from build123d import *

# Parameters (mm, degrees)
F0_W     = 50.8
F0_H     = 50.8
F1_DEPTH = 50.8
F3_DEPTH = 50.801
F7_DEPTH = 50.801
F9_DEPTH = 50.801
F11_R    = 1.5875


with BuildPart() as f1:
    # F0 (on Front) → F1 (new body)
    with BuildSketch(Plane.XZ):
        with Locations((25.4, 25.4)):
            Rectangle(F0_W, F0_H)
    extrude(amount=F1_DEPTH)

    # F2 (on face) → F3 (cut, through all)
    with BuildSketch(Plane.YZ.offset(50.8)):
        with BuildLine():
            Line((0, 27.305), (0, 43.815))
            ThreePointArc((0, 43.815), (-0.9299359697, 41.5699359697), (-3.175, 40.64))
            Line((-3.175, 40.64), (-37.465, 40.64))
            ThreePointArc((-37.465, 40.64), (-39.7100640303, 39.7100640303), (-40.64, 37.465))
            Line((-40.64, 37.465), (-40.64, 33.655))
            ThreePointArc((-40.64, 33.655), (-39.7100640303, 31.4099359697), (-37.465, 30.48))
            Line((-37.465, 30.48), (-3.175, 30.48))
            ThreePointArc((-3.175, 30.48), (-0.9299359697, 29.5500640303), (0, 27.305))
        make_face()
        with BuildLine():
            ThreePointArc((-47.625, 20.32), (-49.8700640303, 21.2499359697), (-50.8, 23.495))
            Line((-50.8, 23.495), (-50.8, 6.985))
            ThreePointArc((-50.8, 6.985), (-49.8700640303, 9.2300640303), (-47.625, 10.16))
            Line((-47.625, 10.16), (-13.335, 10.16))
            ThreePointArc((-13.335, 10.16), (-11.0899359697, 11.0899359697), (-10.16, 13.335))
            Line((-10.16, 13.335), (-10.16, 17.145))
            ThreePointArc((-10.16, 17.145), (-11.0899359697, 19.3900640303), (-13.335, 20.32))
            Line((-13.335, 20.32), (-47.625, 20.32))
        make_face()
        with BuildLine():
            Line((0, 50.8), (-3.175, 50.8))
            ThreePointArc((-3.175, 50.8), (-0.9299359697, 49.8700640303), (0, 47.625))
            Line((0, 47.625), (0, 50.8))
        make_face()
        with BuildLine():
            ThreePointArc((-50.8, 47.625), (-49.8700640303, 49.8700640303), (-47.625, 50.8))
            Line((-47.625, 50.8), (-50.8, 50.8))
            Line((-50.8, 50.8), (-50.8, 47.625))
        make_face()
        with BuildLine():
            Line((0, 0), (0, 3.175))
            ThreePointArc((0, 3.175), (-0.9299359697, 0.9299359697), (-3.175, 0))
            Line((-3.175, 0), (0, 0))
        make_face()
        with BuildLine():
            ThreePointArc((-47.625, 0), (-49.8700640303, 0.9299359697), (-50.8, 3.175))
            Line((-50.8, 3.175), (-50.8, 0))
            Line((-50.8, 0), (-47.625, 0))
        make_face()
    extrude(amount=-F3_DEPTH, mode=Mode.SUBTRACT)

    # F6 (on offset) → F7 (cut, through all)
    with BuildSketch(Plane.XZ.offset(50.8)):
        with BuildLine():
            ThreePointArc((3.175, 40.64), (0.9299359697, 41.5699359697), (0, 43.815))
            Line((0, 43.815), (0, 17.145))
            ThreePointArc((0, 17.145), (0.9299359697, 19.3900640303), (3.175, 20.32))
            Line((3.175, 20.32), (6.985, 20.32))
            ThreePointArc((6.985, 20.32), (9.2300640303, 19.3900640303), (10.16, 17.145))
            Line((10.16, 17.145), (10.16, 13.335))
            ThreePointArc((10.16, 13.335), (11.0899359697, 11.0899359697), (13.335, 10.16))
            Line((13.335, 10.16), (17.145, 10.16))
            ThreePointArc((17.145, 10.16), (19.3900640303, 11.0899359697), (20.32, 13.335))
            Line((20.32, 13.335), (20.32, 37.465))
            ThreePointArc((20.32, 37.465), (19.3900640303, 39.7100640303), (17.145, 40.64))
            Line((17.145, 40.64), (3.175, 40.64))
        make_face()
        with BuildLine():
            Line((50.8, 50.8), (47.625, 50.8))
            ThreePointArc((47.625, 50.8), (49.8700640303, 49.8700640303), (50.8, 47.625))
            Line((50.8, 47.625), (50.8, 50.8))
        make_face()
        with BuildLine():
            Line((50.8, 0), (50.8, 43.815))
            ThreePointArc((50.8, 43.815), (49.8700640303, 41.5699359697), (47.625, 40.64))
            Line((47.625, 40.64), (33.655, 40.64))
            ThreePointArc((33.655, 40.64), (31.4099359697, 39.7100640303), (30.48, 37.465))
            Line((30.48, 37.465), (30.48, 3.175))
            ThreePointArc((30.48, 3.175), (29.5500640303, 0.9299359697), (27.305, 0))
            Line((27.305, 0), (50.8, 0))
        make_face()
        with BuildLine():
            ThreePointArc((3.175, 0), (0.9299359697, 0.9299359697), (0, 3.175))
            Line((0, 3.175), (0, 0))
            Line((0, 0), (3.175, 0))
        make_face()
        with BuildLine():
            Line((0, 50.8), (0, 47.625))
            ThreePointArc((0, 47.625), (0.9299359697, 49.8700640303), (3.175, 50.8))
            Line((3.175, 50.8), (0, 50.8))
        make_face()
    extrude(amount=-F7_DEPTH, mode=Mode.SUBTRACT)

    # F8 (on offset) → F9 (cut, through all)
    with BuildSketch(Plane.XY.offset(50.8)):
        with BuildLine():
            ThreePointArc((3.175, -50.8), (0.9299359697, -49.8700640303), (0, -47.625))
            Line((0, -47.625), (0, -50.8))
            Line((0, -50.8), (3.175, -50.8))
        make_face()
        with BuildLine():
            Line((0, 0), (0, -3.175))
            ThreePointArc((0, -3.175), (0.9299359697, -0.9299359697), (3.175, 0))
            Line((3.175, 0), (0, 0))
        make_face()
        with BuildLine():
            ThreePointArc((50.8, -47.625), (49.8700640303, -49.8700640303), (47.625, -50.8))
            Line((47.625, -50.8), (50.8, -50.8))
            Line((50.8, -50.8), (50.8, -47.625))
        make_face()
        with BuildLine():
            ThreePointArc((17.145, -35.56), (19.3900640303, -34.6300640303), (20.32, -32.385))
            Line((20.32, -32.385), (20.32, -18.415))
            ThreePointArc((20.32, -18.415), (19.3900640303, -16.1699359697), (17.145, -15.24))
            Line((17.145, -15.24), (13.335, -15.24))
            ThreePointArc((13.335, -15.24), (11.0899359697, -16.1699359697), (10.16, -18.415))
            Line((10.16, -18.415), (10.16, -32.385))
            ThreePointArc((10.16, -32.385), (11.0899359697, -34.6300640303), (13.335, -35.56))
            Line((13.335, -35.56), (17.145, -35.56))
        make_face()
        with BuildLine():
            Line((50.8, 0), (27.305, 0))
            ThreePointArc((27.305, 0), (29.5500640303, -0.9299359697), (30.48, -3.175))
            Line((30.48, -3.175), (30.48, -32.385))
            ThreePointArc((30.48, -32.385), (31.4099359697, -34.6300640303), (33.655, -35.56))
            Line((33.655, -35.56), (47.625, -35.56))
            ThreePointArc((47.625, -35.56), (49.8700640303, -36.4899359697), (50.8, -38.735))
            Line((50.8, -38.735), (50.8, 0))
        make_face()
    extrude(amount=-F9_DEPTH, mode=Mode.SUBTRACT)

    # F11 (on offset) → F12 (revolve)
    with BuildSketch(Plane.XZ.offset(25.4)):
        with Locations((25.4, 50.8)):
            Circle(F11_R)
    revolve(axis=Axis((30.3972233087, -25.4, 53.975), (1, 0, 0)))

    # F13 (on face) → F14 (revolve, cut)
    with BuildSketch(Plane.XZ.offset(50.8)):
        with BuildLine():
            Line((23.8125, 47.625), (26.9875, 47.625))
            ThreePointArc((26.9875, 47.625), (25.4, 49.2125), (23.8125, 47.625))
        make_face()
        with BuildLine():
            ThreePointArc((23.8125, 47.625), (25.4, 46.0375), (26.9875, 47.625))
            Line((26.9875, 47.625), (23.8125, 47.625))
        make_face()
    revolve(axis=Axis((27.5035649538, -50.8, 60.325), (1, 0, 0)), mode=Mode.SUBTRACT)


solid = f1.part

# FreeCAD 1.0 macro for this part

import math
import FreeCAD as App
import Part
import Sketcher
Q = App.Units.Quantity


def add_polygon(sketch, points):
    """Adds a closed chain of lines whose ends are joined by coincident constraints."""
    first, n = sketch.GeometryCount, len(points)
    for a, b in zip(points, points[1:] + points[:1]):
        sketch.addGeometry(Part.LineSegment(App.Vector(*a, 0), App.Vector(*b, 0)), False)
    for i in range(n):
        sketch.addConstraint(Sketcher.Constraint("Coincident", first + i, 2, first + (i + 1) % n, 1))

doc = App.newDocument("Part")
params = doc.addObject("Spreadsheet::Sheet", "Params")
for row, (alias, value) in enumerate([
    ("sketch1_width", "2 in"),
    ("pad1_length", "2 in"),
    ("sketch2_radius", "0.125 in"),
    ("sketch2_width", "1.35 in"),
    ("sketch2_height", "0.65 in"),
    ("sketch3_radius", "0.125 in"),
    ("sketch3_width", "0.15 in"),
    ("sketch3_height", "1.05 in"),
    ("sketch3_height2", "1.35 in"),
    ("sketch4_radius", "0.125 in"),
    ("sketch4_width", "0.15 in"),
    ("sketch4_width2", "0.55 in"),
    ("sketch4_height", "1.15 in"),
    ("sketch5_diameter", "0.125 in"),
    ("revolution_angle", "360 deg"),
    ("sketch6_diameter", "0.125 in"),
    ("groove_angle", "360 deg"),
], start=1):
    params.set(f"A{row}", alias)
    params.set(f"B{row}", "=" + value)
    params.setAlias(f"B{row}", alias)

body = doc.addObject("PartDesign::Body", "Body")

# Sketch on XZ plane
sketch1 = doc.addObject("Sketcher::SketchObject", "Sketch")
body.addObject(sketch1)
sketch1.AttachmentSupport = (doc.XZ_Plane, [""])
sketch1.MapMode = "FlatFace"
add_polygon(sketch1, [(0, 51), (0, 0), (51, 0), (51, 51)])  # lines 0-3
sketch1.addConstraint([
    Sketcher.Constraint("Vertical", 0),
    Sketcher.Constraint("Horizontal", 1),
    Sketcher.Constraint("Vertical", 2),
    Sketcher.Constraint("Horizontal", 3),
    Sketcher.Constraint("Coincident", 0, 2, -1, 1),
    Sketcher.Constraint("Equal", 3, 0),
    Sketcher.Constraint("DistanceX", 1, 1, 1, 2, Q("2 in")),
])
sketch1.setExpression("Constraints[10]", "Params.sketch1_width")
pad1 = doc.addObject("PartDesign::Pad", "Pad")
body.addObject(pad1)
pad1.Profile = sketch1
pad1.setExpression("Length", "Params.pad1_length")

# Sketch on YZ plane
sketch2 = doc.addObject("Sketcher::SketchObject", "Sketch001")
body.addObject(sketch2)
sketch2.AttachmentSupport = (doc.YZ_Plane, [""])
sketch2.MapMode = "FlatFace"
sketch2.AttachmentOffset = App.Placement(App.Vector(0, 0, 2 * 25.4), App.Rotation())
sketch2.addGeometry([
    Part.LineSegment(App.Vector(0, 27.3, 0), App.Vector(0, 43.8, 0)),  # 0
    Part.ArcOfCircle(Part.Circle(App.Vector(-3.2, 43.8, 0), App.Vector(0, 0, 1), 3.2), math.radians(-90), math.radians(0)),  # 1
    Part.LineSegment(App.Vector(-3.2, 40.6, 0), App.Vector(-37.5, 40.6, 0)),  # 2
    Part.ArcOfCircle(Part.Circle(App.Vector(-37.5, 37.5, 0), App.Vector(0, 0, 1), 3.2), math.radians(90), math.radians(180)),  # 3
    Part.LineSegment(App.Vector(-40.6, 37.5, 0), App.Vector(-40.6, 33.7, 0)),  # 4
    Part.ArcOfCircle(Part.Circle(App.Vector(-37.5, 33.7, 0), App.Vector(0, 0, 1), 3.2), math.radians(180), math.radians(270)),  # 5
    Part.LineSegment(App.Vector(-37.5, 30.5, 0), App.Vector(-3.2, 30.5, 0)),  # 6
    Part.ArcOfCircle(Part.Circle(App.Vector(-3.2, 27.3, 0), App.Vector(0, 0, 1), 3.2), math.radians(0), math.radians(90)),  # 7
    Part.ArcOfCircle(Part.Circle(App.Vector(-47.6, 23.5, 0), App.Vector(0, 0, 1), 3.2), math.radians(180), math.radians(270)),  # 8
    Part.LineSegment(App.Vector(-50.8, 23.5, 0), App.Vector(-50.8, 7, 0)),  # 9
    Part.ArcOfCircle(Part.Circle(App.Vector(-47.6, 7, 0), App.Vector(0, 0, 1), 3.2), math.radians(90), math.radians(180)),  # 10
    Part.LineSegment(App.Vector(-47.6, 10.2, 0), App.Vector(-13.3, 10.2, 0)),  # 11
    Part.ArcOfCircle(Part.Circle(App.Vector(-13.3, 13.3, 0), App.Vector(0, 0, 1), 3.2), math.radians(-90), math.radians(0)),  # 12
    Part.LineSegment(App.Vector(-10.2, 13.3, 0), App.Vector(-10.2, 17.1, 0)),  # 13
    Part.ArcOfCircle(Part.Circle(App.Vector(-13.3, 17.1, 0), App.Vector(0, 0, 1), 3.2), math.radians(0), math.radians(90)),  # 14
    Part.LineSegment(App.Vector(-13.3, 20.3, 0), App.Vector(-47.6, 20.3, 0)),  # 15
    Part.LineSegment(App.Vector(0, 50.8, 0), App.Vector(-3.2, 50.8, 0)),  # 16
    Part.ArcOfCircle(Part.Circle(App.Vector(-3.2, 47.6, 0), App.Vector(0, 0, 1), 3.2), math.radians(0), math.radians(90)),  # 17
    Part.LineSegment(App.Vector(0, 47.6, 0), App.Vector(0, 50.8, 0)),  # 18
    Part.ArcOfCircle(Part.Circle(App.Vector(-47.6, 47.6, 0), App.Vector(0, 0, 1), 3.2), math.radians(90), math.radians(180)),  # 19
    Part.LineSegment(App.Vector(-47.6, 50.8, 0), App.Vector(-50.8, 50.8, 0)),  # 20
    Part.LineSegment(App.Vector(-50.8, 50.8, 0), App.Vector(-50.8, 47.6, 0)),  # 21
    Part.LineSegment(App.Vector(0, 0, 0), App.Vector(0, 3.2, 0)),  # 22
    Part.ArcOfCircle(Part.Circle(App.Vector(-3.2, 3.2, 0), App.Vector(0, 0, 1), 3.2), math.radians(-90), math.radians(0)),  # 23
    Part.LineSegment(App.Vector(-3.2, 0, 0), App.Vector(0, 0, 0)),  # 24
    Part.ArcOfCircle(Part.Circle(App.Vector(-47.6, 3.2, 0), App.Vector(0, 0, 1), 3.2), math.radians(180), math.radians(270)),  # 25
    Part.LineSegment(App.Vector(-50.8, 3.2, 0), App.Vector(-50.8, 0, 0)),  # 26
    Part.LineSegment(App.Vector(-50.8, 0, 0), App.Vector(-47.6, 0, 0)),  # 27
], False)
sketch2.addConstraint([
    Sketcher.Constraint("Tangent", 0, 2, 1, 2),
    Sketcher.Constraint("Tangent", 1, 1, 2, 1),
    Sketcher.Constraint("Tangent", 2, 2, 3, 1),
    Sketcher.Constraint("Tangent", 3, 2, 4, 1),
    Sketcher.Constraint("Tangent", 4, 2, 5, 1),
    Sketcher.Constraint("Tangent", 5, 2, 6, 1),
    Sketcher.Constraint("Tangent", 6, 2, 7, 2),
    Sketcher.Constraint("Tangent", 7, 1, 0, 1),
    Sketcher.Constraint("Tangent", 8, 1, 9, 1),
    Sketcher.Constraint("Tangent", 9, 2, 10, 2),
    Sketcher.Constraint("Tangent", 10, 1, 11, 1),
    Sketcher.Constraint("Tangent", 11, 2, 12, 1),
    Sketcher.Constraint("Tangent", 12, 2, 13, 1),
    Sketcher.Constraint("Tangent", 13, 2, 14, 1),
    Sketcher.Constraint("Tangent", 14, 2, 15, 1),
    Sketcher.Constraint("Tangent", 15, 2, 8, 2),
    Sketcher.Constraint("Tangent", 16, 2, 17, 2),
    Sketcher.Constraint("Tangent", 17, 1, 18, 1),
    Sketcher.Constraint("Coincident", 18, 2, 16, 1),
    Sketcher.Constraint("Tangent", 19, 1, 20, 1),
    Sketcher.Constraint("Coincident", 20, 2, 21, 1),
    Sketcher.Constraint("Tangent", 21, 2, 19, 2),
    Sketcher.Constraint("Tangent", 22, 2, 23, 2),
    Sketcher.Constraint("Tangent", 23, 1, 24, 1),
    Sketcher.Constraint("Coincident", 24, 2, 22, 1),
    Sketcher.Constraint("Tangent", 25, 1, 26, 1),
    Sketcher.Constraint("Coincident", 26, 2, 27, 1),
    Sketcher.Constraint("Tangent", 27, 2, 25, 2),
    Sketcher.Constraint("Vertical", 0),
    Sketcher.Constraint("Horizontal", 2),
    Sketcher.Constraint("Vertical", 4),
    Sketcher.Constraint("Horizontal", 6),
    Sketcher.Constraint("Vertical", 9),
    Sketcher.Constraint("Horizontal", 11),
    Sketcher.Constraint("Vertical", 13),
    Sketcher.Constraint("Horizontal", 15),
    Sketcher.Constraint("Horizontal", 16),
    Sketcher.Constraint("Vertical", 18),
    Sketcher.Constraint("Horizontal", 20),
    Sketcher.Constraint("Vertical", 21),
    Sketcher.Constraint("Vertical", 22),
    Sketcher.Constraint("Horizontal", 24),
    Sketcher.Constraint("Vertical", 26),
    Sketcher.Constraint("Horizontal", 27),
    Sketcher.Constraint("Coincident", 24, 2, -1, 1),
    Sketcher.Constraint("Equal", 1, 3),
    Sketcher.Constraint("Equal", 3, 5),
    Sketcher.Constraint("Equal", 5, 7),
    Sketcher.Constraint("Equal", 7, 8),
    Sketcher.Constraint("Equal", 8, 10),
    Sketcher.Constraint("Equal", 10, 12),
    Sketcher.Constraint("Equal", 12, 14),
    Sketcher.Constraint("Equal", 14, 17),
    Sketcher.Constraint("Equal", 17, 19),
    Sketcher.Constraint("Equal", 19, 23),
    Sketcher.Constraint("Equal", 23, 25),
    Sketcher.Constraint("PointOnObject", 0, 2, -2),
    Sketcher.Constraint("PointOnObject", 17, 1, -2),
    Sketcher.Constraint("PointOnObject", 26, 2, -1),
    Sketcher.Constraint("Horizontal", 17, 3, 19, 3),
    Sketcher.Constraint("Vertical", 10, 3, 19, 3),
    Sketcher.Constraint("Vertical", 19, 3, 25, 3),
    Sketcher.Constraint("Equal", 6, 11),
    Sketcher.Constraint("Equal", 0, 9),
    Sketcher.Constraint("DistanceX", 8, 1, -1, 1, Q("2 in")),
    Sketcher.Constraint("DistanceY", -1, 1, 16, 2, Q("2 in")),
    Sketcher.Constraint("Radius", 1, Q("0.125 in")),
    Sketcher.Constraint("DistanceX", 2, 2, 2, 1, Q("1.35 in")),
    Sketcher.Constraint("DistanceY", 0, 1, 0, 2, Q("0.65 in")),
    Sketcher.Constraint("DistanceY", -1, 1, 1, 1, Q("1.6 in")),
    Sketcher.Constraint("DistanceY", -1, 1, 10, 1, Q("0.4 in")),
])
sketch2.setExpression("Constraints[66]", "Params.sketch2_radius")
sketch2.setExpression("Constraints[67]", "Params.sketch2_width")
sketch2.setExpression("Constraints[68]", "Params.sketch2_height")
pocket1 = doc.addObject("PartDesign::Pocket", "Pocket")
body.addObject(pocket1)
pocket1.Profile = sketch2
pocket1.Type = "ThroughAll"

# Sketch on XZ plane
sketch3 = doc.addObject("Sketcher::SketchObject", "Sketch002")
body.addObject(sketch3)
sketch3.AttachmentSupport = (doc.XZ_Plane, [""])
sketch3.MapMode = "FlatFace"
sketch3.AttachmentOffset = App.Placement(App.Vector(0, 0, 2 * 25.4), App.Rotation())
sketch3.addGeometry([
    Part.ArcOfCircle(Part.Circle(App.Vector(3.2, 43.8, 0), App.Vector(0, 0, 1), 3.2), math.radians(180), math.radians(270)),  # 0
    Part.LineSegment(App.Vector(0, 43.8, 0), App.Vector(0, 17.1, 0)),  # 1
    Part.ArcOfCircle(Part.Circle(App.Vector(3.2, 17.1, 0), App.Vector(0, 0, 1), 3.2), math.radians(90), math.radians(180)),  # 2
    Part.LineSegment(App.Vector(3.2, 20.3, 0), App.Vector(7, 20.3, 0)),  # 3
    Part.ArcOfCircle(Part.Circle(App.Vector(7, 17.1, 0), App.Vector(0, 0, 1), 3.2), math.radians(0), math.radians(90)),  # 4
    Part.LineSegment(App.Vector(10.2, 17.1, 0), App.Vector(10.2, 13.3, 0)),  # 5
    Part.ArcOfCircle(Part.Circle(App.Vector(13.3, 13.3, 0), App.Vector(0, 0, 1), 3.2), math.radians(180), math.radians(270)),  # 6
    Part.LineSegment(App.Vector(13.3, 10.2, 0), App.Vector(17.1, 10.2, 0)),  # 7
    Part.ArcOfCircle(Part.Circle(App.Vector(17.1, 13.3, 0), App.Vector(0, 0, 1), 3.2), math.radians(-90), math.radians(0)),  # 8
    Part.LineSegment(App.Vector(20.3, 13.3, 0), App.Vector(20.3, 37.5, 0)),  # 9
    Part.ArcOfCircle(Part.Circle(App.Vector(17.1, 37.5, 0), App.Vector(0, 0, 1), 3.2), math.radians(0), math.radians(90)),  # 10
    Part.LineSegment(App.Vector(17.1, 40.6, 0), App.Vector(3.2, 40.6, 0)),  # 11
    Part.LineSegment(App.Vector(50.8, 50.8, 0), App.Vector(47.6, 50.8, 0)),  # 12
    Part.ArcOfCircle(Part.Circle(App.Vector(47.6, 47.6, 0), App.Vector(0, 0, 1), 3.2), math.radians(0), math.radians(90)),  # 13
    Part.LineSegment(App.Vector(50.8, 47.6, 0), App.Vector(50.8, 50.8, 0)),  # 14
    Part.LineSegment(App.Vector(50.8, 0, 0), App.Vector(50.8, 43.8, 0)),  # 15
    Part.ArcOfCircle(Part.Circle(App.Vector(47.6, 43.8, 0), App.Vector(0, 0, 1), 3.2), math.radians(-90), math.radians(0)),  # 16
    Part.LineSegment(App.Vector(47.6, 40.6, 0), App.Vector(33.7, 40.6, 0)),  # 17
    Part.ArcOfCircle(Part.Circle(App.Vector(33.7, 37.5, 0), App.Vector(0, 0, 1), 3.2), math.radians(90), math.radians(180)),  # 18
    Part.LineSegment(App.Vector(30.5, 37.5, 0), App.Vector(30.5, 3.2, 0)),  # 19
    Part.ArcOfCircle(Part.Circle(App.Vector(27.3, 3.2, 0), App.Vector(0, 0, 1), 3.2), math.radians(-90), math.radians(0)),  # 20
    Part.LineSegment(App.Vector(27.3, 0, 0), App.Vector(50.8, 0, 0)),  # 21
    Part.ArcOfCircle(Part.Circle(App.Vector(3.2, 3.2, 0), App.Vector(0, 0, 1), 3.2), math.radians(180), math.radians(270)),  # 22
    Part.LineSegment(App.Vector(0, 3.2, 0), App.Vector(0, 0, 0)),  # 23
    Part.LineSegment(App.Vector(0, 0, 0), App.Vector(3.2, 0, 0)),  # 24
    Part.LineSegment(App.Vector(0, 50.8, 0), App.Vector(0, 47.6, 0)),  # 25
    Part.ArcOfCircle(Part.Circle(App.Vector(3.2, 47.6, 0), App.Vector(0, 0, 1), 3.2), math.radians(90), math.radians(180)),  # 26
    Part.LineSegment(App.Vector(3.2, 50.8, 0), App.Vector(0, 50.8, 0)),  # 27
], False)
sketch3.addConstraint([
    Sketcher.Constraint("Tangent", 0, 1, 1, 1),
    Sketcher.Constraint("Tangent", 1, 2, 2, 2),
    Sketcher.Constraint("Tangent", 2, 1, 3, 1),
    Sketcher.Constraint("Tangent", 3, 2, 4, 2),
    Sketcher.Constraint("Tangent", 4, 1, 5, 1),
    Sketcher.Constraint("Tangent", 5, 2, 6, 1),
    Sketcher.Constraint("Tangent", 6, 2, 7, 1),
    Sketcher.Constraint("Tangent", 7, 2, 8, 1),
    Sketcher.Constraint("Tangent", 8, 2, 9, 1),
    Sketcher.Constraint("Tangent", 9, 2, 10, 1),
    Sketcher.Constraint("Tangent", 10, 2, 11, 1),
    Sketcher.Constraint("Tangent", 11, 2, 0, 2),
    Sketcher.Constraint("Tangent", 12, 2, 13, 2),
    Sketcher.Constraint("Tangent", 13, 1, 14, 1),
    Sketcher.Constraint("Coincident", 14, 2, 12, 1),
    Sketcher.Constraint("Tangent", 15, 2, 16, 2),
    Sketcher.Constraint("Tangent", 16, 1, 17, 1),
    Sketcher.Constraint("Tangent", 17, 2, 18, 1),
    Sketcher.Constraint("Tangent", 18, 2, 19, 1),
    Sketcher.Constraint("Tangent", 19, 2, 20, 2),
    Sketcher.Constraint("Tangent", 20, 1, 21, 1),
    Sketcher.Constraint("Coincident", 21, 2, 15, 1),
    Sketcher.Constraint("Tangent", 22, 1, 23, 1),
    Sketcher.Constraint("Coincident", 23, 2, 24, 1),
    Sketcher.Constraint("Tangent", 24, 2, 22, 2),
    Sketcher.Constraint("Tangent", 25, 2, 26, 2),
    Sketcher.Constraint("Tangent", 26, 1, 27, 1),
    Sketcher.Constraint("Coincident", 27, 2, 25, 1),
    Sketcher.Constraint("Vertical", 1),
    Sketcher.Constraint("Horizontal", 3),
    Sketcher.Constraint("Vertical", 5),
    Sketcher.Constraint("Horizontal", 7),
    Sketcher.Constraint("Vertical", 9),
    Sketcher.Constraint("Horizontal", 11),
    Sketcher.Constraint("Horizontal", 12),
    Sketcher.Constraint("Vertical", 14),
    Sketcher.Constraint("Vertical", 15),
    Sketcher.Constraint("Horizontal", 17),
    Sketcher.Constraint("Vertical", 19),
    Sketcher.Constraint("Horizontal", 21),
    Sketcher.Constraint("Vertical", 23),
    Sketcher.Constraint("Horizontal", 24),
    Sketcher.Constraint("Vertical", 25),
    Sketcher.Constraint("Horizontal", 27),
    Sketcher.Constraint("Coincident", 23, 2, -1, 1),
    Sketcher.Constraint("Equal", 0, 2),
    Sketcher.Constraint("Equal", 2, 4),
    Sketcher.Constraint("Equal", 4, 6),
    Sketcher.Constraint("Equal", 6, 8),
    Sketcher.Constraint("Equal", 8, 10),
    Sketcher.Constraint("Equal", 10, 13),
    Sketcher.Constraint("Equal", 13, 16),
    Sketcher.Constraint("Equal", 16, 18),
    Sketcher.Constraint("Equal", 18, 20),
    Sketcher.Constraint("Equal", 20, 22),
    Sketcher.Constraint("Equal", 22, 26),
    Sketcher.Constraint("PointOnObject", 0, 1, -2),
    Sketcher.Constraint("PointOnObject", 20, 1, -1),
    Sketcher.Constraint("PointOnObject", 25, 2, -2),
    Sketcher.Constraint("Horizontal", 0, 3, 16, 3),
    Sketcher.Constraint("Horizontal", 13, 3, 26, 3),
    Sketcher.Constraint("Vertical", 13, 3, 16, 3),
    Sketcher.Constraint("Equal", 3, 7),
    Sketcher.Constraint("Equal", 11, 17),
    Sketcher.Constraint("Equal", 7, 5),
    Sketcher.Constraint("DistanceY", -1, 1, 12, 2, Q("2 in")),
    Sketcher.Constraint("DistanceX", -1, 1, 13, 1, Q("2 in")),
    Sketcher.Constraint("Radius", 0, Q("0.125 in")),
    Sketcher.Constraint("DistanceX", 3, 1, 3, 2, Q("0.15 in")),
    Sketcher.Constraint("DistanceY", 1, 2, 1, 1, Q("1.05 in")),
    Sketcher.Constraint("DistanceY", 19, 2, 19, 1, Q("1.35 in")),
])
sketch3.setExpression("Constraints[67]", "Params.sketch3_radius")
sketch3.setExpression("Constraints[68]", "Params.sketch3_width")
sketch3.setExpression("Constraints[69]", "Params.sketch3_height")
sketch3.setExpression("Constraints[70]", "Params.sketch3_height2")
pocket2 = doc.addObject("PartDesign::Pocket", "Pocket001")
body.addObject(pocket2)
pocket2.Profile = sketch3
pocket2.Type = "ThroughAll"

# Sketch on XY plane
sketch4 = doc.addObject("Sketcher::SketchObject", "Sketch003")
body.addObject(sketch4)
sketch4.AttachmentSupport = (doc.XY_Plane, [""])
sketch4.MapMode = "FlatFace"
sketch4.AttachmentOffset = App.Placement(App.Vector(0, 0, 2 * 25.4), App.Rotation())
sketch4.addGeometry([
    Part.ArcOfCircle(Part.Circle(App.Vector(3.2, -47.6, 0), App.Vector(0, 0, 1), 3.2), math.radians(180), math.radians(270)),  # 0
    Part.LineSegment(App.Vector(0, -47.6, 0), App.Vector(0, -50.8, 0)),  # 1
    Part.LineSegment(App.Vector(0, -50.8, 0), App.Vector(3.2, -50.8, 0)),  # 2
    Part.LineSegment(App.Vector(0, 0, 0), App.Vector(0, -3.2, 0)),  # 3
    Part.ArcOfCircle(Part.Circle(App.Vector(3.2, -3.2, 0), App.Vector(0, 0, 1), 3.2), math.radians(90), math.radians(180)),  # 4
    Part.LineSegment(App.Vector(3.2, 0, 0), App.Vector(0, 0, 0)),  # 5
    Part.ArcOfCircle(Part.Circle(App.Vector(47.6, -47.6, 0), App.Vector(0, 0, 1), 3.2), math.radians(-90), math.radians(0)),  # 6
    Part.LineSegment(App.Vector(47.6, -50.8, 0), App.Vector(50.8, -50.8, 0)),  # 7
    Part.LineSegment(App.Vector(50.8, -50.8, 0), App.Vector(50.8, -47.6, 0)),  # 8
    Part.ArcOfCircle(Part.Circle(App.Vector(17.1, -32.4, 0), App.Vector(0, 0, 1), 3.2), math.radians(-90), math.radians(0)),  # 9
    Part.LineSegment(App.Vector(20.3, -32.4, 0), App.Vector(20.3, -18.4, 0)),  # 10
    Part.ArcOfCircle(Part.Circle(App.Vector(17.1, -18.4, 0), App.Vector(0, 0, 1), 3.2), math.radians(0), math.radians(90)),  # 11
    Part.LineSegment(App.Vector(17.1, -15.2, 0), App.Vector(13.3, -15.2, 0)),  # 12
    Part.ArcOfCircle(Part.Circle(App.Vector(13.3, -18.4, 0), App.Vector(0, 0, 1), 3.2), math.radians(90), math.radians(180)),  # 13
    Part.LineSegment(App.Vector(10.2, -18.4, 0), App.Vector(10.2, -32.4, 0)),  # 14
    Part.ArcOfCircle(Part.Circle(App.Vector(13.3, -32.4, 0), App.Vector(0, 0, 1), 3.2), math.radians(180), math.radians(270)),  # 15
    Part.LineSegment(App.Vector(13.3, -35.6, 0), App.Vector(17.1, -35.6, 0)),  # 16
    Part.LineSegment(App.Vector(50.8, 0, 0), App.Vector(27.3, 0, 0)),  # 17
    Part.ArcOfCircle(Part.Circle(App.Vector(27.3, -3.2, 0), App.Vector(0, 0, 1), 3.2), math.radians(0), math.radians(90)),  # 18
    Part.LineSegment(App.Vector(30.5, -3.2, 0), App.Vector(30.5, -32.4, 0)),  # 19
    Part.ArcOfCircle(Part.Circle(App.Vector(33.7, -32.4, 0), App.Vector(0, 0, 1), 3.2), math.radians(180), math.radians(270)),  # 20
    Part.LineSegment(App.Vector(33.7, -35.6, 0), App.Vector(47.6, -35.6, 0)),  # 21
    Part.ArcOfCircle(Part.Circle(App.Vector(47.6, -38.7, 0), App.Vector(0, 0, 1), 3.2), math.radians(0), math.radians(90)),  # 22
    Part.LineSegment(App.Vector(50.8, -38.7, 0), App.Vector(50.8, 0, 0)),  # 23
], False)
sketch4.addConstraint([
    Sketcher.Constraint("Tangent", 0, 1, 1, 1),
    Sketcher.Constraint("Coincident", 1, 2, 2, 1),
    Sketcher.Constraint("Tangent", 2, 2, 0, 2),
    Sketcher.Constraint("Tangent", 3, 2, 4, 2),
    Sketcher.Constraint("Tangent", 4, 1, 5, 1),
    Sketcher.Constraint("Coincident", 5, 2, 3, 1),
    Sketcher.Constraint("Tangent", 6, 1, 7, 1),
    Sketcher.Constraint("Coincident", 7, 2, 8, 1),
    Sketcher.Constraint("Tangent", 8, 2, 6, 2),
    Sketcher.Constraint("Tangent", 9, 2, 10, 1),
    Sketcher.Constraint("Tangent", 10, 2, 11, 1),
    Sketcher.Constraint("Tangent", 11, 2, 12, 1),
    Sketcher.Constraint("Tangent", 12, 2, 13, 1),
    Sketcher.Constraint("Tangent", 13, 2, 14, 1),
    Sketcher.Constraint("Tangent", 14, 2, 15, 1),
    Sketcher.Constraint("Tangent", 15, 2, 16, 1),
    Sketcher.Constraint("Tangent", 16, 2, 9, 1),
    Sketcher.Constraint("Tangent", 17, 2, 18, 2),
    Sketcher.Constraint("Tangent", 18, 1, 19, 1),
    Sketcher.Constraint("Tangent", 19, 2, 20, 1),
    Sketcher.Constraint("Tangent", 20, 2, 21, 1),
    Sketcher.Constraint("Tangent", 21, 2, 22, 2),
    Sketcher.Constraint("Tangent", 22, 1, 23, 1),
    Sketcher.Constraint("Coincident", 23, 2, 17, 1),
    Sketcher.Constraint("Vertical", 1),
    Sketcher.Constraint("Horizontal", 2),
    Sketcher.Constraint("Vertical", 3),
    Sketcher.Constraint("Horizontal", 5),
    Sketcher.Constraint("Horizontal", 7),
    Sketcher.Constraint("Vertical", 8),
    Sketcher.Constraint("Vertical", 10),
    Sketcher.Constraint("Horizontal", 12),
    Sketcher.Constraint("Vertical", 14),
    Sketcher.Constraint("Horizontal", 16),
    Sketcher.Constraint("Horizontal", 17),
    Sketcher.Constraint("Vertical", 19),
    Sketcher.Constraint("Horizontal", 21),
    Sketcher.Constraint("Vertical", 23),
    Sketcher.Constraint("Coincident", 5, 2, -1, 1),
    Sketcher.Constraint("Equal", 0, 4),
    Sketcher.Constraint("Equal", 4, 6),
    Sketcher.Constraint("Equal", 6, 9),
    Sketcher.Constraint("Equal", 9, 11),
    Sketcher.Constraint("Equal", 11, 13),
    Sketcher.Constraint("Equal", 13, 15),
    Sketcher.Constraint("Equal", 15, 18),
    Sketcher.Constraint("Equal", 18, 20),
    Sketcher.Constraint("Equal", 20, 22),
    Sketcher.Constraint("PointOnObject", 0, 1, -2),
    Sketcher.Constraint("PointOnObject", 17, 2, -1),
    Sketcher.Constraint("Horizontal", 0, 3, 6, 3),
    Sketcher.Constraint("Horizontal", 15, 3, 20, 3),
    Sketcher.Constraint("Vertical", 6, 3, 22, 3),
    Sketcher.Constraint("Equal", 21, 10),
    Sketcher.Constraint("DistanceY", 1, 2, -1, 1, Q("2 in")),
    Sketcher.Constraint("DistanceX", -1, 1, 7, 2, Q("2 in")),
    Sketcher.Constraint("Radius", 0, Q("0.125 in")),
    Sketcher.Constraint("DistanceX", 12, 2, 12, 1, Q("0.15 in")),
    Sketcher.Constraint("DistanceX", 21, 1, 21, 2, Q("0.55 in")),
    Sketcher.Constraint("DistanceY", 19, 2, 19, 1, Q("1.15 in")),
    Sketcher.Constraint("DistanceX", -1, 1, 9, 2, Q("0.8 in")),
])
sketch4.setExpression("Constraints[56]", "Params.sketch4_radius")
sketch4.setExpression("Constraints[57]", "Params.sketch4_width")
sketch4.setExpression("Constraints[58]", "Params.sketch4_width2")
sketch4.setExpression("Constraints[59]", "Params.sketch4_height")
pocket3 = doc.addObject("PartDesign::Pocket", "Pocket002")
body.addObject(pocket3)
pocket3.Profile = sketch4
pocket3.Type = "ThroughAll"

# Sketch on XZ plane
sketch5 = doc.addObject("Sketcher::SketchObject", "Sketch004")
body.addObject(sketch5)
sketch5.AttachmentSupport = (doc.XZ_Plane, [""])
sketch5.MapMode = "FlatFace"
sketch5.AttachmentOffset = App.Placement(App.Vector(0, 0, 1 * 25.4), App.Rotation())
sketch5.addGeometry(Part.Circle(App.Vector(25.4, 50.8, 0), App.Vector(0, 0, 1), 1.6), False)
sketch5.addGeometry(Part.LineSegment(App.Vector(25.4, 54, 0), App.Vector(35.4, 54, 0)), True)  # axis
sketch5.addConstraint([
    Sketcher.Constraint("Horizontal", 1),
    Sketcher.Constraint("Vertical", 0, 3, 1, 1),
    Sketcher.Constraint("Diameter", 0, Q("0.125 in")),
    Sketcher.Constraint("DistanceX", -1, 1, 0, 3, Q("1 in")),
    Sketcher.Constraint("DistanceY", -1, 1, 0, 3, Q("2 in")),
    Sketcher.Constraint("DistanceY", -1, 1, 1, 1, Q("2.125 in")),
    Sketcher.Constraint("DistanceX", 1, 1, 1, 2, 10.0),
])
sketch5.setExpression("Constraints[2]", "Params.sketch5_diameter")
revolution = doc.addObject("PartDesign::Revolution", "Revolution")
body.addObject(revolution)
revolution.Profile = sketch5
revolution.ReferenceAxis = (sketch5, ["Axis0"])
revolution.setExpression("Angle", "Params.revolution_angle")

# Sketch on XZ plane
sketch6 = doc.addObject("Sketcher::SketchObject", "Sketch005")
body.addObject(sketch6)
sketch6.AttachmentSupport = (doc.XZ_Plane, [""])
sketch6.MapMode = "FlatFace"
sketch6.AttachmentOffset = App.Placement(App.Vector(0, 0, 2 * 25.4), App.Rotation())
sketch6.addGeometry(Part.Circle(App.Vector(25.4, 47.6, 0), App.Vector(0, 0, 1), 1.6), False)
sketch6.addGeometry(Part.LineSegment(App.Vector(25.4, 60.3, 0), App.Vector(35.4, 60.3, 0)), True)  # axis
sketch6.addConstraint([
    Sketcher.Constraint("Horizontal", 1),
    Sketcher.Constraint("Vertical", 0, 3, 1, 1),
    Sketcher.Constraint("Diameter", 0, Q("0.125 in")),
    Sketcher.Constraint("DistanceX", -1, 1, 0, 3, Q("1 in")),
    Sketcher.Constraint("DistanceY", 0, 3, 1, 1, Q("0.5 in")),
    Sketcher.Constraint("DistanceY", -1, 1, 0, 3, Q("1.875 in")),
    Sketcher.Constraint("DistanceX", 1, 1, 1, 2, 10.0),
])
sketch6.setExpression("Constraints[2]", "Params.sketch6_diameter")
groove = doc.addObject("PartDesign::Groove", "Groove")
body.addObject(groove)
groove.Profile = sketch6
groove.ReferenceAxis = (sketch6, ["Axis0"])
groove.setExpression("Angle", "Params.groove_angle")

doc.recompute()
